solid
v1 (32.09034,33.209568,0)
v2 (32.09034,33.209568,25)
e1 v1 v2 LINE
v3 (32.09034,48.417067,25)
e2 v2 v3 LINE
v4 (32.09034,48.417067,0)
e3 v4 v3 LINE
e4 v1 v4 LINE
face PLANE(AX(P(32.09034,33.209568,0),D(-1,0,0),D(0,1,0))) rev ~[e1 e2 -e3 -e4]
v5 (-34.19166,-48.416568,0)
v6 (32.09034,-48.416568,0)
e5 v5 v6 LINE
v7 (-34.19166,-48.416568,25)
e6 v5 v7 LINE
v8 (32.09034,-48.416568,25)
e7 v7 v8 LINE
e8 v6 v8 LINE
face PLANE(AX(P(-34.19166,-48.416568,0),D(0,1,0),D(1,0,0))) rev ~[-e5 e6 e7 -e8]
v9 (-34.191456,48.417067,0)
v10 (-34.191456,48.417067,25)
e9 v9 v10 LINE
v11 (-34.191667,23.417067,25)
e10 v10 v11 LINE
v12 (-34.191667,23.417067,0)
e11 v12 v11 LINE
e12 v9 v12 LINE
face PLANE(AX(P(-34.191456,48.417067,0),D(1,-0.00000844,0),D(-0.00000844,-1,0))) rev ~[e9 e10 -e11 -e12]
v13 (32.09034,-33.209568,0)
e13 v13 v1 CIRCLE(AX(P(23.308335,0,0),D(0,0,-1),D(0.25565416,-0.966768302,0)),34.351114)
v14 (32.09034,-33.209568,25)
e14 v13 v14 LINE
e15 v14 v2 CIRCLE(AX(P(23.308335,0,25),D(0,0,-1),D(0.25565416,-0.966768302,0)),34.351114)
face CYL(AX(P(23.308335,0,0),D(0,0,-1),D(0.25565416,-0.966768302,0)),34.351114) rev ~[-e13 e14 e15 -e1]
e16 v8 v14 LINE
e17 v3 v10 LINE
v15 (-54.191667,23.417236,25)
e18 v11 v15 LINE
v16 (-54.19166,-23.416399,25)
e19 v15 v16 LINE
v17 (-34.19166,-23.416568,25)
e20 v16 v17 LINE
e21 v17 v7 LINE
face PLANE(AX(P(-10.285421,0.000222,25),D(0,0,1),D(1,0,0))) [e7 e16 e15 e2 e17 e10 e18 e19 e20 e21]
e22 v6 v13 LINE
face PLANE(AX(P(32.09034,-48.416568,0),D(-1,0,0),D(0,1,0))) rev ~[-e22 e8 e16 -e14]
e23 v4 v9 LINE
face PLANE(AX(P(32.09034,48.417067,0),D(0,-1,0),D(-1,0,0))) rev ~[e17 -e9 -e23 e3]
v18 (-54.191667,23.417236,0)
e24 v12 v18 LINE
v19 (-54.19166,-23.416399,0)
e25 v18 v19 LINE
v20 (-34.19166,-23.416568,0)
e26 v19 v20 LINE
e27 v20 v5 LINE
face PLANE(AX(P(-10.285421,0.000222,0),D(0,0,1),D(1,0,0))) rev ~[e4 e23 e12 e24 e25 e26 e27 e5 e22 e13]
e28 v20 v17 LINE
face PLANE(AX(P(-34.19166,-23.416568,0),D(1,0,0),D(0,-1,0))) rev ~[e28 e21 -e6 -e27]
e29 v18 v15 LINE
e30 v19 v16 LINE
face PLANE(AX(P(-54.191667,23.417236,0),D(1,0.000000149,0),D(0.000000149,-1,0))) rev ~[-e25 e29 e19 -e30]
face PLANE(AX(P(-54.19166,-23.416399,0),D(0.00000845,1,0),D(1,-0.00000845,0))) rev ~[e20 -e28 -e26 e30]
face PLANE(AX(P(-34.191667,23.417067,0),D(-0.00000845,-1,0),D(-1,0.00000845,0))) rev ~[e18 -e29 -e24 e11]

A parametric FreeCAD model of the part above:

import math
import FreeCAD as App
import Part
import Sketcher
Q = App.Units.Quantity

doc = App.newDocument("Part")
body = doc.addObject("PartDesign::Body", "Body")

sketch1 = body.newObject("Sketcher::SketchObject", "Sketch")
sketch1.AttachmentSupport = (doc.getObject("XY_Plane"), [""])
sketch1.MapMode = "FlatFace"
sketch1.addGeometry([
    Part.LineSegment(App.Vector(32, 33, 0), App.Vector(32, 48, 0)),
    Part.LineSegment(App.Vector(32, 48, 0), App.Vector(-34, 48, 0)),
    Part.LineSegment(App.Vector(-34, 48, 0), App.Vector(-34, 23, 0)),
    Part.LineSegment(App.Vector(-34, 23, 0), App.Vector(-54, 23, 0)),
    Part.LineSegment(App.Vector(-54, 23, 0), App.Vector(-54, -23, 0)),
    Part.LineSegment(App.Vector(-54, -23, 0), App.Vector(-34, -23, 0)),
    Part.LineSegment(App.Vector(-34, -23, 0), App.Vector(-34, -48, 0)),
    Part.LineSegment(App.Vector(-34, -48, 0), App.Vector(32, -48, 0)),
    Part.LineSegment(App.Vector(32, -48, 0), App.Vector(32, -33, 0)),
    Part.ArcOfCircle(Part.Circle(App.Vector(23, 0, 0), App.Vector(0, 0, 1), 34), math.radians(75), math.radians(285)),
], False)
sketch1.addConstraint([
    Sketcher.Constraint("Coincident", 0, 2, 1, 1),
    Sketcher.Constraint("Coincident", 1, 2, 2, 1),
    Sketcher.Constraint("Coincident", 2, 2, 3, 1),
    Sketcher.Constraint("Coincident", 3, 2, 4, 1),
    Sketcher.Constraint("Coincident", 4, 2, 5, 1),
    Sketcher.Constraint("Coincident", 5, 2, 6, 1),
    Sketcher.Constraint("Coincident", 6, 2, 7, 1),
    Sketcher.Constraint("Coincident", 7, 2, 8, 1),
    Sketcher.Constraint("Coincident", 8, 2, 9, 2),
    Sketcher.Constraint("Coincident", 9, 1, 0, 1),
    Sketcher.Constraint("Vertical", 0),
    Sketcher.Constraint("Horizontal", 1),
    Sketcher.Constraint("Vertical", 6),
    Sketcher.Constraint("Horizontal", 7),
    Sketcher.Constraint("Vertical", 8),
    Sketcher.Constraint("Symmetric", 8, 2, 9, 1, -1),
    Sketcher.Constraint("Perpendicular", 2, 3),
    Sketcher.Constraint("Parallel", 3, 5),
    Sketcher.Constraint("Equal", 3, 5),
    Sketcher.Constraint("DistanceY", 6, 2, 6, 1, 25.0),
    Sketcher.Constraint("Angle", 4, Q("-89.999991 deg")),
    Sketcher.Constraint("Distance", 2, 25.0),
    Sketcher.Constraint("Distance", 3, 20.0),
    Sketcher.Constraint("DistanceX", 2, 2, 9, 3, 57.500002),
    Sketcher.Constraint("DistanceX", 7, 1, 7, 2, 66.282),
    Sketcher.Constraint("DistanceY", 8, 1, 8, 2, 15.207),
    Sketcher.Constraint("DistanceY", 0, 1, 0, 2, 15.207499),
    Sketcher.Constraint("Radius", 9, 34.351114),
    Sketcher.Constraint("DistanceY", 4, 2, -1, 1, 23.416399),
    Sketcher.Constraint("DistanceX", -1, 1, 0, 2, 32.09034),
])
pad1 = body.newObject("PartDesign::Pad", "Pad")
pad1.Profile = sketch1
pad1.Length = 25

doc.recompute()
